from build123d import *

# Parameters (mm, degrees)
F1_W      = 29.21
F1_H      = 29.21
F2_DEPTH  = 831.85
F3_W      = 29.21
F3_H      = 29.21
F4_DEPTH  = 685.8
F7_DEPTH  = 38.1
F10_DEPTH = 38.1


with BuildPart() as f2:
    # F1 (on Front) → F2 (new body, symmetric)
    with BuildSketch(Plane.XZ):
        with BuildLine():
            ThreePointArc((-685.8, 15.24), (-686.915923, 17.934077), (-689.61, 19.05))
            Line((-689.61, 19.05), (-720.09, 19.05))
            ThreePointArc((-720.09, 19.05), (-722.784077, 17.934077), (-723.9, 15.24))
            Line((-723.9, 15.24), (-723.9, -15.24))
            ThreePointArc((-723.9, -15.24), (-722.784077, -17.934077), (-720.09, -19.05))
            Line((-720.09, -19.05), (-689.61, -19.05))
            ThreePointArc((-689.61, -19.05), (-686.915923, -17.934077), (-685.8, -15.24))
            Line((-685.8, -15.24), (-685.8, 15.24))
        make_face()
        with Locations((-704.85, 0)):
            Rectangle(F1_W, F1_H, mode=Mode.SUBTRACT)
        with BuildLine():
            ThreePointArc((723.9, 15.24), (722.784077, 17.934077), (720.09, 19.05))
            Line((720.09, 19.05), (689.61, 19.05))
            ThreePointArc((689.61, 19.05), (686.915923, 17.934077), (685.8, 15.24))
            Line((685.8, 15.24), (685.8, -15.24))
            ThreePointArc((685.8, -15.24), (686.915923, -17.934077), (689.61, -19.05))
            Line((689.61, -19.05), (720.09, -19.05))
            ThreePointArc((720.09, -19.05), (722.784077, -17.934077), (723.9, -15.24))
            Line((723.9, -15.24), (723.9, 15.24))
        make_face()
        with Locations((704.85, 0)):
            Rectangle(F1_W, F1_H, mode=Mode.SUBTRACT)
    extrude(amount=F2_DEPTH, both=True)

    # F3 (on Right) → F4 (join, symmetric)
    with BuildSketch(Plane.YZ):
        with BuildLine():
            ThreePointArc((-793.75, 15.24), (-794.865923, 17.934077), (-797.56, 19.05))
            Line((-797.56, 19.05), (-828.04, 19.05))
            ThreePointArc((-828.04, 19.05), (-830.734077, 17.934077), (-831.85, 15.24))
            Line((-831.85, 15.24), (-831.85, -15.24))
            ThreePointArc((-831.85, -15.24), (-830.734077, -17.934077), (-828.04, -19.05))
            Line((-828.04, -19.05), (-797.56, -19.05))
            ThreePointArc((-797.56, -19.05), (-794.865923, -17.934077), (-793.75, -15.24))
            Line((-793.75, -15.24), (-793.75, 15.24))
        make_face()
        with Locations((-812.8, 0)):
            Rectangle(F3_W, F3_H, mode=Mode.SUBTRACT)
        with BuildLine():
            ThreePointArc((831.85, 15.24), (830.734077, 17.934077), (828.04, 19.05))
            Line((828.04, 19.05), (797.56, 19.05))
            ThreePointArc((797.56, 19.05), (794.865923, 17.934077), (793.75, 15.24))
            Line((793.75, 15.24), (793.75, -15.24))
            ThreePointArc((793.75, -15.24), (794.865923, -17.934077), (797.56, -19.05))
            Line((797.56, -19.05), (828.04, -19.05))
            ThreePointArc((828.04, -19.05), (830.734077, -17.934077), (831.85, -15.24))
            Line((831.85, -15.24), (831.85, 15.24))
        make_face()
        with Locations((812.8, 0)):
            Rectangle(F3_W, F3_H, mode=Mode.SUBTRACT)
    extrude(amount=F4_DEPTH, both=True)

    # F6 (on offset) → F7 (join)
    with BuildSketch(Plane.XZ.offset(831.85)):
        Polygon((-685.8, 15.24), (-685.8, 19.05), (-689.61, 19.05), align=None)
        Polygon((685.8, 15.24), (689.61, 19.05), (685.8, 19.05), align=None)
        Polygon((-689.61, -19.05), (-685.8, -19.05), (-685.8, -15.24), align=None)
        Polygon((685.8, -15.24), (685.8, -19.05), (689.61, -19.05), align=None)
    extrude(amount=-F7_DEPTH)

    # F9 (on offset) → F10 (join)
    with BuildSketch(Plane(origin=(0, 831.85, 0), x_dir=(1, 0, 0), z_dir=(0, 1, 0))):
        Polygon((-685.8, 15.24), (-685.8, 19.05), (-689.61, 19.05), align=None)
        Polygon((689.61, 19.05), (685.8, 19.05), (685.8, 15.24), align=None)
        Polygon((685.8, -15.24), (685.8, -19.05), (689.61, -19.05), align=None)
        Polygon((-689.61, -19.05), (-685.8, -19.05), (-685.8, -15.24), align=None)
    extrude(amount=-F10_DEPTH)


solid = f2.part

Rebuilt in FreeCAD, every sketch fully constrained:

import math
import FreeCAD as App
import Part
import Sketcher

V = App.Vector
Q = App.Units.Quantity

doc = App.newDocument("Part")
body = doc.addObject("PartDesign::Body", "Body")
body.AllowCompound = True

sketch1 = body.newObject("Sketcher::SketchObject", "Sketch")
sketch1.AttachmentSupport = (doc.getObject("XZ_Plane"), [""])
sketch1.MapMode = "FlatFace"
sketch1.addGeometry(Part.ArcOfCircle(Part.Circle(V(-689.609999, 15.240001, 0), V(0, 0, 1), 3.809999), math.radians(-0.000008), math.radians(90.000008)), False)
sketch1.addGeometry(Part.LineSegment(V(-689.61, 19.05, 0), V(-720.09, 19.05, 0)), False)
sketch1.addGeometry(Part.ArcOfCircle(Part.Circle(V(-720.090001, 15.240001, 0), V(0, 0, 1), 3.809999), math.radians(89.999992), math.radians(180.000008)), False)
sketch1.addGeometry(Part.LineSegment(V(-723.9, 15.24, 0), V(-723.9, -15.24, 0)), False)
sketch1.addGeometry(Part.ArcOfCircle(Part.Circle(V(-720.090001, -15.240001, 0), V(0, 0, 1), 3.809999), math.radians(179.999992), math.radians(270.000008)), False)
sketch1.addGeometry(Part.LineSegment(V(-720.09, -19.05, 0), V(-689.61, -19.05, 0)), False)
sketch1.addGeometry(Part.ArcOfCircle(Part.Circle(V(-689.609999, -15.240001, 0), V(0, 0, 1), 3.809999), math.radians(-90.000008), math.radians(0.000008)), False)
sketch1.addGeometry(Part.LineSegment(V(-685.8, -15.24, 0), V(-685.8, 15.24, 0)), False)
sketch1.addGeometry(Part.LineSegment(V(-690.245, -14.605, 0), V(-719.455, -14.605, 0)), False)
sketch1.addGeometry(Part.LineSegment(V(-719.455, -14.605, 0), V(-719.455, 14.605, 0)), False)
sketch1.addGeometry(Part.LineSegment(V(-719.455, 14.605, 0), V(-690.245, 14.605, 0)), False)
sketch1.addGeometry(Part.LineSegment(V(-690.245, 14.605, 0), V(-690.245, -14.605, 0)), False)
sketch1.addGeometry(Part.ArcOfCircle(Part.Circle(V(720.090001, 15.240001, 0), V(0, 0, 1), 3.809999), math.radians(-0.000008), math.radians(90.000008)), False)
sketch1.addGeometry(Part.LineSegment(V(720.09, 19.05, 0), V(689.61, 19.05, 0)), False)
sketch1.addGeometry(Part.ArcOfCircle(Part.Circle(V(689.609999, 15.240001, 0), V(0, 0, 1), 3.809999), math.radians(89.999992), math.radians(180.000008)), False)
sketch1.addGeometry(Part.LineSegment(V(685.8, 15.24, 0), V(685.8, -15.24, 0)), False)
sketch1.addGeometry(Part.ArcOfCircle(Part.Circle(V(689.609999, -15.240001, 0), V(0, 0, 1), 3.809999), math.radians(179.999992), math.radians(270.000008)), False)
sketch1.addGeometry(Part.LineSegment(V(689.61, -19.05, 0), V(720.09, -19.05, 0)), False)
sketch1.addGeometry(Part.ArcOfCircle(Part.Circle(V(720.090001, -15.240001, 0), V(0, 0, 1), 3.809999), math.radians(-90.000008), math.radians(0.000008)), False)
sketch1.addGeometry(Part.LineSegment(V(723.9, -15.24, 0), V(723.9, 15.24, 0)), False)
sketch1.addGeometry(Part.LineSegment(V(719.455, -14.605, 0), V(690.245, -14.605, 0)), False)
sketch1.addGeometry(Part.LineSegment(V(690.245, -14.605, 0), V(690.245, 14.605, 0)), False)
sketch1.addGeometry(Part.LineSegment(V(690.245, 14.605, 0), V(719.455, 14.605, 0)), False)
sketch1.addGeometry(Part.LineSegment(V(719.455, 14.605, 0), V(719.455, -14.605, 0)), False)
sketch1.addConstraint(Sketcher.Constraint("Tangent", 0, 2, 1, 1))
sketch1.addConstraint(Sketcher.Constraint("Tangent", 1, 2, 2, 1))
sketch1.addConstraint(Sketcher.Constraint("Tangent", 2, 2, 3, 1))
sketch1.addConstraint(Sketcher.Constraint("Tangent", 3, 2, 4, 1))
sketch1.addConstraint(Sketcher.Constraint("Tangent", 4, 2, 5, 1))
sketch1.addConstraint(Sketcher.Constraint("Tangent", 5, 2, 6, 1))
sketch1.addConstraint(Sketcher.Constraint("Tangent", 6, 2, 7, 1))
sketch1.addConstraint(Sketcher.Constraint("Tangent", 7, 2, 0, 1))
sketch1.addConstraint(Sketcher.Constraint("Coincident", 8, 2, 9, 1))
sketch1.addConstraint(Sketcher.Constraint("Coincident", 9, 2, 10, 1))
sketch1.addConstraint(Sketcher.Constraint("Coincident", 10, 2, 11, 1))
sketch1.addConstraint(Sketcher.Constraint("Coincident", 11, 2, 8, 1))
sketch1.addConstraint(Sketcher.Constraint("Tangent", 12, 2, 13, 1))
sketch1.addConstraint(Sketcher.Constraint("Tangent", 13, 2, 14, 1))
sketch1.addConstraint(Sketcher.Constraint("Tangent", 14, 2, 15, 1))
sketch1.addConstraint(Sketcher.Constraint("Tangent", 15, 2, 16, 1))
sketch1.addConstraint(Sketcher.Constraint("Tangent", 16, 2, 17, 1))
sketch1.addConstraint(Sketcher.Constraint("Tangent", 17, 2, 18, 1))
sketch1.addConstraint(Sketcher.Constraint("Tangent", 18, 2, 19, 1))
sketch1.addConstraint(Sketcher.Constraint("Tangent", 19, 2, 12, 1))
sketch1.addConstraint(Sketcher.Constraint("Coincident", 20, 2, 21, 1))
sketch1.addConstraint(Sketcher.Constraint("Coincident", 21, 2, 22, 1))
sketch1.addConstraint(Sketcher.Constraint("Coincident", 22, 2, 23, 1))
sketch1.addConstraint(Sketcher.Constraint("Coincident", 23, 2, 20, 1))
sketch1.addConstraint(Sketcher.Constraint("Horizontal", 1))
sketch1.addConstraint(Sketcher.Constraint("Vertical", 3))
sketch1.addConstraint(Sketcher.Constraint("Horizontal", 5))
sketch1.addConstraint(Sketcher.Constraint("Vertical", 7))
sketch1.addConstraint(Sketcher.Constraint("Horizontal", 8))
sketch1.addConstraint(Sketcher.Constraint("Vertical", 9))
sketch1.addConstraint(Sketcher.Constraint("Horizontal", 10))
sketch1.addConstraint(Sketcher.Constraint("Vertical", 11))
sketch1.addConstraint(Sketcher.Constraint("Horizontal", 13))
sketch1.addConstraint(Sketcher.Constraint("Vertical", 15))
sketch1.addConstraint(Sketcher.Constraint("Horizontal", 17))
sketch1.addConstraint(Sketcher.Constraint("Vertical", 19))
sketch1.addConstraint(Sketcher.Constraint("Horizontal", 20))
sketch1.addConstraint(Sketcher.Constraint("Vertical", 21))
sketch1.addConstraint(Sketcher.Constraint("Horizontal", 22))
sketch1.addConstraint(Sketcher.Constraint("Vertical", 23))
sketch1.addConstraint(Sketcher.Constraint("Equal", 0, 2))
sketch1.addConstraint(Sketcher.Constraint("Equal", 2, 4))
sketch1.addConstraint(Sketcher.Constraint("Equal", 4, 6))
sketch1.addConstraint(Sketcher.Constraint("Equal", 6, 12))
sketch1.addConstraint(Sketcher.Constraint("Equal", 12, 14))
sketch1.addConstraint(Sketcher.Constraint("Equal", 14, 16))
sketch1.addConstraint(Sketcher.Constraint("Equal", 16, 18))
sketch1.addConstraint(Sketcher.Constraint("Symmetric", 4, 3, 12, 3, -1, 1))
sketch1.addConstraint(Sketcher.Constraint("Symmetric", 0, 3, 16, 3, -1, 1))
sketch1.addConstraint(Sketcher.Constraint("Symmetric", 10, 2, 20, 2, -1, 1))
sketch1.addConstraint(Sketcher.Constraint("Symmetric", 8, 2, 22, 2, -1, 1))
sketch1.addConstraint(Sketcher.Constraint("Horizontal", 2, 3, 12, 3))
sketch1.addConstraint(Sketcher.Constraint("Horizontal", 11, 2, 20, 2))
sketch1.addConstraint(Sketcher.Constraint("Equal", 17, 3))
sketch1.addConstraint(Sketcher.Constraint("Equal", 22, 9))
sketch1.addConstraint(Sketcher.Constraint("Radius", 0, Q("0.15 in")))
sketch1.addConstraint(Sketcher.Constraint("DistanceX", 1, 2, 1, 1, Q("1.2 in")))
sketch1.addConstraint(Sketcher.Constraint("DistanceX", 6, 2, -1, 1, Q("27 in")))
sketch1.addConstraint(Sketcher.Constraint("DistanceX", 8, 2, 8, 1, Q("1.15 in")))
sketch1.addConstraint(Sketcher.Constraint("DistanceX", 8, 2, -1, 1, Q("28.325 in")))
pad1 = body.newObject("PartDesign::Pad", "Pad")
pad1.Profile = sketch1
pad1.Length = Q("65.5 in")
pad1.Midplane = True

sketch2 = body.newObject("Sketcher::SketchObject", "Sketch001")
sketch2.AttachmentSupport = (doc.getObject("YZ_Plane"), [""])
sketch2.MapMode = "FlatFace"
sketch2.addGeometry(Part.ArcOfCircle(Part.Circle(V(-797.559999, 15.240001, 0), V(0, 0, 1), 3.809999), math.radians(-0.000008), math.radians(90.000008)), False)
sketch2.addGeometry(Part.LineSegment(V(-797.56, 19.05, 0), V(-828.04, 19.05, 0)), False)
sketch2.addGeometry(Part.ArcOfCircle(Part.Circle(V(-828.040001, 15.240001, 0), V(0, 0, 1), 3.809999), math.radians(89.999992), math.radians(180.000008)), False)
sketch2.addGeometry(Part.LineSegment(V(-831.85, 15.24, 0), V(-831.85, -15.24, 0)), False)
sketch2.addGeometry(Part.ArcOfCircle(Part.Circle(V(-828.040001, -15.240001, 0), V(0, 0, 1), 3.809999), math.radians(179.999992), math.radians(270.000008)), False)
sketch2.addGeometry(Part.LineSegment(V(-828.04, -19.05, 0), V(-797.56, -19.05, 0)), False)
sketch2.addGeometry(Part.ArcOfCircle(Part.Circle(V(-797.559999, -15.240001, 0), V(0, 0, 1), 3.809999), math.radians(-90.000008), math.radians(0.000008)), False)
sketch2.addGeometry(Part.LineSegment(V(-793.75, -15.24, 0), V(-793.75, 15.24, 0)), False)
sketch2.addGeometry(Part.LineSegment(V(-798.195, -14.605, 0), V(-827.405, -14.605, 0)), False)
sketch2.addGeometry(Part.LineSegment(V(-827.405, -14.605, 0), V(-827.405, 14.605, 0)), False)
sketch2.addGeometry(Part.LineSegment(V(-827.405, 14.605, 0), V(-798.195, 14.605, 0)), False)
sketch2.addGeometry(Part.LineSegment(V(-798.195, 14.605, 0), V(-798.195, -14.605, 0)), False)
sketch2.addGeometry(Part.ArcOfCircle(Part.Circle(V(828.040001, 15.240001, 0), V(0, 0, 1), 3.809999), math.radians(-0.000008), math.radians(90.000008)), False)
sketch2.addGeometry(Part.LineSegment(V(828.04, 19.05, 0), V(797.56, 19.05, 0)), False)
sketch2.addGeometry(Part.ArcOfCircle(Part.Circle(V(797.559999, 15.240001, 0), V(0, 0, 1), 3.809999), math.radians(89.999992), math.radians(180.000008)), False)
sketch2.addGeometry(Part.LineSegment(V(793.75, 15.24, 0), V(793.75, -15.24, 0)), False)
sketch2.addGeometry(Part.ArcOfCircle(Part.Circle(V(797.559999, -15.240001, 0), V(0, 0, 1), 3.809999), math.radians(179.999992), math.radians(270.000008)), False)
sketch2.addGeometry(Part.LineSegment(V(797.56, -19.05, 0), V(828.04, -19.05, 0)), False)
sketch2.addGeometry(Part.ArcOfCircle(Part.Circle(V(828.040001, -15.240001, 0), V(0, 0, 1), 3.809999), math.radians(-90.000008), math.radians(0.000008)), False)
sketch2.addGeometry(Part.LineSegment(V(831.85, -15.24, 0), V(831.85, 15.24, 0)), False)
sketch2.addGeometry(Part.LineSegment(V(827.405, -14.605, 0), V(798.195, -14.605, 0)), False)
sketch2.addGeometry(Part.LineSegment(V(798.195, -14.605, 0), V(798.195, 14.605, 0)), False)
sketch2.addGeometry(Part.LineSegment(V(798.195, 14.605, 0), V(827.405, 14.605, 0)), False)
sketch2.addGeometry(Part.LineSegment(V(827.405, 14.605, 0), V(827.405, -14.605, 0)), False)
sketch2.addConstraint(Sketcher.Constraint("Tangent", 0, 2, 1, 1))
sketch2.addConstraint(Sketcher.Constraint("Tangent", 1, 2, 2, 1))
sketch2.addConstraint(Sketcher.Constraint("Tangent", 2, 2, 3, 1))
sketch2.addConstraint(Sketcher.Constraint("Tangent", 3, 2, 4, 1))
sketch2.addConstraint(Sketcher.Constraint("Tangent", 4, 2, 5, 1))
sketch2.addConstraint(Sketcher.Constraint("Tangent", 5, 2, 6, 1))
sketch2.addConstraint(Sketcher.Constraint("Tangent", 6, 2, 7, 1))
sketch2.addConstraint(Sketcher.Constraint("Tangent", 7, 2, 0, 1))
sketch2.addConstraint(Sketcher.Constraint("Coincident", 8, 2, 9, 1))
sketch2.addConstraint(Sketcher.Constraint("Coincident", 9, 2, 10, 1))
sketch2.addConstraint(Sketcher.Constraint("Coincident", 10, 2, 11, 1))
sketch2.addConstraint(Sketcher.Constraint("Coincident", 11, 2, 8, 1))
sketch2.addConstraint(Sketcher.Constraint("Tangent", 12, 2, 13, 1))
sketch2.addConstraint(Sketcher.Constraint("Tangent", 13, 2, 14, 1))
sketch2.addConstraint(Sketcher.Constraint("Tangent", 14, 2, 15, 1))
sketch2.addConstraint(Sketcher.Constraint("Tangent", 15, 2, 16, 1))
sketch2.addConstraint(Sketcher.Constraint("Tangent", 16, 2, 17, 1))
sketch2.addConstraint(Sketcher.Constraint("Tangent", 17, 2, 18, 1))
sketch2.addConstraint(Sketcher.Constraint("Tangent", 18, 2, 19, 1))
sketch2.addConstraint(Sketcher.Constraint("Tangent", 19, 2, 12, 1))
sketch2.addConstraint(Sketcher.Constraint("Coincident", 20, 2, 21, 1))
sketch2.addConstraint(Sketcher.Constraint("Coincident", 21, 2, 22, 1))
sketch2.addConstraint(Sketcher.Constraint("Coincident", 22, 2, 23, 1))
sketch2.addConstraint(Sketcher.Constraint("Coincident", 23, 2, 20, 1))
sketch2.addConstraint(Sketcher.Constraint("Horizontal", 1))
sketch2.addConstraint(Sketcher.Constraint("Vertical", 3))
sketch2.addConstraint(Sketcher.Constraint("Horizontal", 5))
sketch2.addConstraint(Sketcher.Constraint("Vertical", 7))
sketch2.addConstraint(Sketcher.Constraint("Horizontal", 8))
sketch2.addConstraint(Sketcher.Constraint("Vertical", 9))
sketch2.addConstraint(Sketcher.Constraint("Horizontal", 10))
sketch2.addConstraint(Sketcher.Constraint("Vertical", 11))
sketch2.addConstraint(Sketcher.Constraint("Horizontal", 13))
sketch2.addConstraint(Sketcher.Constraint("Vertical", 15))
sketch2.addConstraint(Sketcher.Constraint("Horizontal", 17))
sketch2.addConstraint(Sketcher.Constraint("Vertical", 19))
sketch2.addConstraint(Sketcher.Constraint("Horizontal", 20))
sketch2.addConstraint(Sketcher.Constraint("Vertical", 21))
sketch2.addConstraint(Sketcher.Constraint("Horizontal", 22))
sketch2.addConstraint(Sketcher.Constraint("Vertical", 23))
sketch2.addConstraint(Sketcher.Constraint("Equal", 0, 2))
sketch2.addConstraint(Sketcher.Constraint("Equal", 2, 4))
sketch2.addConstraint(Sketcher.Constraint("Equal", 4, 6))
sketch2.addConstraint(Sketcher.Constraint("Equal", 6, 12))
sketch2.addConstraint(Sketcher.Constraint("Equal", 12, 14))
sketch2.addConstraint(Sketcher.Constraint("Equal", 14, 16))
sketch2.addConstraint(Sketcher.Constraint("Equal", 16, 18))
sketch2.addConstraint(Sketcher.Constraint("Symmetric", 4, 3, 12, 3, -1, 1))
sketch2.addConstraint(Sketcher.Constraint("Symmetric", 0, 3, 16, 3, -1, 1))
sketch2.addConstraint(Sketcher.Constraint("Symmetric", 10, 2, 20, 2, -1, 1))
sketch2.addConstraint(Sketcher.Constraint("Symmetric", 8, 2, 22, 2, -1, 1))
sketch2.addConstraint(Sketcher.Constraint("Horizontal", 2, 3, 12, 3))
sketch2.addConstraint(Sketcher.Constraint("Horizontal", 11, 2, 20, 2))
sketch2.addConstraint(Sketcher.Constraint("Equal", 17, 3))
sketch2.addConstraint(Sketcher.Constraint("Equal", 22, 9))
sketch2.addConstraint(Sketcher.Constraint("Radius", 0, Q("0.15 in")))
sketch2.addConstraint(Sketcher.Constraint("DistanceX", 1, 2, 1, 1, Q("1.2 in")))
sketch2.addConstraint(Sketcher.Constraint("DistanceX", 0, 3, 12, 3, Q("64 in")))
sketch2.addConstraint(Sketcher.Constraint("DistanceX", 8, 2, 8, 1, Q("1.15 in")))
sketch2.addConstraint(Sketcher.Constraint("DistanceX", 8, 2, -1, 1, Q("32.575 in")))
pad2 = body.newObject("PartDesign::Pad", "Pad001")
pad2.Profile = sketch2
pad2.Length = Q("54 in")
pad2.Midplane = True

sketch3 = body.newObject("Sketcher::SketchObject", "Sketch002")
sketch3.AttachmentSupport = (doc.getObject("XZ_Plane"), [""])
sketch3.MapMode = "FlatFace"
sketch3.AttachmentOffset = App.Placement(V(0, 0, 32.75 * 25.4), App.Rotation())
sketch3.addGeometry(Part.LineSegment(V(-685.8, 15.24, 0), V(-685.8, 19.05, 0)), False)
sketch3.addGeometry(Part.LineSegment(V(-685.8, 19.05, 0), V(-689.61, 19.05, 0)), False)
sketch3.addGeometry(Part.LineSegment(V(-689.61, 19.05, 0), V(-685.8, 15.24, 0)), False)
sketch3.addGeometry(Part.LineSegment(V(685.8, 15.24, 0), V(689.61, 19.05, 0)), False)
sketch3.addGeometry(Part.LineSegment(V(689.61, 19.05, 0), V(685.8, 19.05, 0)), False)
sketch3.addGeometry(Part.LineSegment(V(685.8, 19.05, 0), V(685.8, 15.24, 0)), False)
sketch3.addGeometry(Part.LineSegment(V(-689.61, -19.05, 0), V(-685.8, -19.05, 0)), False)
sketch3.addGeometry(Part.LineSegment(V(-685.8, -19.05, 0), V(-685.8, -15.24, 0)), False)
sketch3.addGeometry(Part.LineSegment(V(-685.8, -15.24, 0), V(-689.61, -19.05, 0)), False)
sketch3.addGeometry(Part.LineSegment(V(685.8, -15.24, 0), V(685.8, -19.05, 0)), False)
sketch3.addGeometry(Part.LineSegment(V(685.8, -19.05, 0), V(689.61, -19.05, 0)), False)
sketch3.addGeometry(Part.LineSegment(V(689.61, -19.05, 0), V(685.8, -15.24, 0)), False)
sketch3.addConstraint(Sketcher.Constraint("Coincident", 0, 2, 1, 1))
sketch3.addConstraint(Sketcher.Constraint("Coincident", 1, 2, 2, 1))
sketch3.addConstraint(Sketcher.Constraint("Coincident", 2, 2, 0, 1))
sketch3.addConstraint(Sketcher.Constraint("Coincident", 3, 2, 4, 1))
sketch3.addConstraint(Sketcher.Constraint("Coincident", 4, 2, 5, 1))
sketch3.addConstraint(Sketcher.Constraint("Coincident", 5, 2, 3, 1))
sketch3.addConstraint(Sketcher.Constraint("Coincident", 6, 2, 7, 1))
sketch3.addConstraint(Sketcher.Constraint("Coincident", 7, 2, 8, 1))
sketch3.addConstraint(Sketcher.Constraint("Coincident", 8, 2, 6, 1))
sketch3.addConstraint(Sketcher.Constraint("Coincident", 9, 2, 10, 1))
sketch3.addConstraint(Sketcher.Constraint("Coincident", 10, 2, 11, 1))
sketch3.addConstraint(Sketcher.Constraint("Coincident", 11, 2, 9, 1))
sketch3.addConstraint(Sketcher.Constraint("Vertical", 0))
sketch3.addConstraint(Sketcher.Constraint("Horizontal", 1))
sketch3.addConstraint(Sketcher.Constraint("Horizontal", 4))
sketch3.addConstraint(Sketcher.Constraint("Vertical", 5))
sketch3.addConstraint(Sketcher.Constraint("Horizontal", 6))
sketch3.addConstraint(Sketcher.Constraint("Vertical", 7))
sketch3.addConstraint(Sketcher.Constraint("Vertical", 9))
sketch3.addConstraint(Sketcher.Constraint("Horizontal", 10))
sketch3.addConstraint(Sketcher.Constraint("Symmetric", 4, 2, 6, 2, -1, 1))
sketch3.addConstraint(Sketcher.Constraint("Symmetric", 0, 2, 9, 2, -1, 1))
sketch3.addConstraint(Sketcher.Constraint("Symmetric", 1, 2, 3, 2, -2))
sketch3.addConstraint(Sketcher.Constraint("Symmetric", 2, 2, 5, 2, -2))
sketch3.addConstraint(Sketcher.Constraint("Perpendicular", 2, 3))
sketch3.addConstraint(Sketcher.Constraint("Parallel", 3, 8))
sketch3.addConstraint(Sketcher.Constraint("Perpendicular", 8, 11))
sketch3.addConstraint(Sketcher.Constraint("Horizontal", 7, 2, 11, 2))
sketch3.addConstraint(Sketcher.Constraint("Vertical", 1, 2, 8, 2))
sketch3.addConstraint(Sketcher.Constraint("DistanceX", 0, 2, -1, 1, Q("27 in")))
sketch3.addConstraint(Sketcher.Constraint("DistanceX", 1, 2, 1, 1, Q("0.15 in")))
sketch3.addConstraint(Sketcher.Constraint("DistanceY", -1, 1, 2, 2, Q("0.6 in")))
pad3 = body.newObject("PartDesign::Pad", "Pad002")
pad3.Profile = sketch3
pad3.Length = Q("1.5 in")
pad3.Reversed = True

sketch4 = body.newObject("Sketcher::SketchObject", "Sketch003")
sketch4.AttachmentSupport = (doc.getObject("XZ_Plane"), [""])
sketch4.MapMode = "FlatFace"
sketch4.AttachmentOffset = App.Placement(V(0, 0, -32.75 * 25.4), App.Rotation())
sketch4.addGeometry(Part.LineSegment(V(-685.8, -15.24, 0), V(-685.8, -19.05, 0)), False)
sketch4.addGeometry(Part.LineSegment(V(-685.8, -19.05, 0), V(-689.61, -19.05, 0)), False)
sketch4.addGeometry(Part.LineSegment(V(-689.61, -19.05, 0), V(-685.8, -15.24, 0)), False)
sketch4.addGeometry(Part.LineSegment(V(689.61, -19.05, 0), V(685.8, -19.05, 0)), False)
sketch4.addGeometry(Part.LineSegment(V(685.8, -19.05, 0), V(685.8, -15.24, 0)), False)
sketch4.addGeometry(Part.LineSegment(V(685.8, -15.24, 0), V(689.61, -19.05, 0)), False)
sketch4.addGeometry(Part.LineSegment(V(685.8, 15.24, 0), V(685.8, 19.05, 0)), False)
sketch4.addGeometry(Part.LineSegment(V(685.8, 19.05, 0), V(689.61, 19.05, 0)), False)
sketch4.addGeometry(Part.LineSegment(V(689.61, 19.05, 0), V(685.8, 15.24, 0)), False)
sketch4.addGeometry(Part.LineSegment(V(-689.61, 19.05, 0), V(-685.8, 19.05, 0)), False)
sketch4.addGeometry(Part.LineSegment(V(-685.8, 19.05, 0), V(-685.8, 15.24, 0)), False)
sketch4.addGeometry(Part.LineSegment(V(-685.8, 15.24, 0), V(-689.61, 19.05, 0)), False)
sketch4.addConstraint(Sketcher.Constraint("Coincident", 0, 2, 1, 1))
sketch4.addConstraint(Sketcher.Constraint("Coincident", 1, 2, 2, 1))
sketch4.addConstraint(Sketcher.Constraint("Coincident", 2, 2, 0, 1))
sketch4.addConstraint(Sketcher.Constraint("Coincident", 3, 2, 4, 1))
sketch4.addConstraint(Sketcher.Constraint("Coincident", 4, 2, 5, 1))
sketch4.addConstraint(Sketcher.Constraint("Coincident", 5, 2, 3, 1))
sketch4.addConstraint(Sketcher.Constraint("Coincident", 6, 2, 7, 1))
sketch4.addConstraint(Sketcher.Constraint("Coincident", 7, 2, 8, 1))
sketch4.addConstraint(Sketcher.Constraint("Coincident", 8, 2, 6, 1))
sketch4.addConstraint(Sketcher.Constraint("Coincident", 9, 2, 10, 1))
sketch4.addConstraint(Sketcher.Constraint("Coincident", 10, 2, 11, 1))
sketch4.addConstraint(Sketcher.Constraint("Coincident", 11, 2, 9, 1))
sketch4.addConstraint(Sketcher.Constraint("Vertical", 0))
sketch4.addConstraint(Sketcher.Constraint("Horizontal", 1))
sketch4.addConstraint(Sketcher.Constraint("Horizontal", 3))
sketch4.addConstraint(Sketcher.Constraint("Vertical", 4))
sketch4.addConstraint(Sketcher.Constraint("Vertical", 6))
sketch4.addConstraint(Sketcher.Constraint("Horizontal", 7))
sketch4.addConstraint(Sketcher.Constraint("Horizontal", 9))
sketch4.addConstraint(Sketcher.Constraint("Vertical", 10))
sketch4.addConstraint(Sketcher.Constraint("Symmetric", 0, 2, 6, 2, -1, 1))
sketch4.addConstraint(Sketcher.Constraint("Symmetric", 3, 2, 9, 2, -1, 1))
sketch4.addConstraint(Sketcher.Constraint("Symmetric", 0, 2, 3, 2, -2))
sketch4.addConstraint(Sketcher.Constraint("Perpendicular", 2, 5))
sketch4.addConstraint(Sketcher.Constraint("Perpendicular", 5, 8))
sketch4.addConstraint(Sketcher.Constraint("Perpendicular", 8, 11))
sketch4.addConstraint(Sketcher.Constraint("Horizontal", 2, 2, 4, 2))
sketch4.addConstraint(Sketcher.Constraint("Horizontal", 8, 2, 10, 2))
sketch4.addConstraint(Sketcher.Constraint("Vertical", 5, 2, 7, 2))
sketch4.addConstraint(Sketcher.Constraint("Vertical", 1, 2, 11, 2))
sketch4.addConstraint(Sketcher.Constraint("DistanceX", 0, 2, -1, 1, Q("27 in")))
sketch4.addConstraint(Sketcher.Constraint("DistanceX", 1, 2, 1, 1, Q("0.15 in")))
sketch4.addConstraint(Sketcher.Constraint("DistanceY", 2, 2, -1, 1, Q("0.6 in")))
pad4 = body.newObject("PartDesign::Pad", "Pad003")
pad4.Profile = sketch4
pad4.Length = Q("1.5 in")

doc.recompute()
